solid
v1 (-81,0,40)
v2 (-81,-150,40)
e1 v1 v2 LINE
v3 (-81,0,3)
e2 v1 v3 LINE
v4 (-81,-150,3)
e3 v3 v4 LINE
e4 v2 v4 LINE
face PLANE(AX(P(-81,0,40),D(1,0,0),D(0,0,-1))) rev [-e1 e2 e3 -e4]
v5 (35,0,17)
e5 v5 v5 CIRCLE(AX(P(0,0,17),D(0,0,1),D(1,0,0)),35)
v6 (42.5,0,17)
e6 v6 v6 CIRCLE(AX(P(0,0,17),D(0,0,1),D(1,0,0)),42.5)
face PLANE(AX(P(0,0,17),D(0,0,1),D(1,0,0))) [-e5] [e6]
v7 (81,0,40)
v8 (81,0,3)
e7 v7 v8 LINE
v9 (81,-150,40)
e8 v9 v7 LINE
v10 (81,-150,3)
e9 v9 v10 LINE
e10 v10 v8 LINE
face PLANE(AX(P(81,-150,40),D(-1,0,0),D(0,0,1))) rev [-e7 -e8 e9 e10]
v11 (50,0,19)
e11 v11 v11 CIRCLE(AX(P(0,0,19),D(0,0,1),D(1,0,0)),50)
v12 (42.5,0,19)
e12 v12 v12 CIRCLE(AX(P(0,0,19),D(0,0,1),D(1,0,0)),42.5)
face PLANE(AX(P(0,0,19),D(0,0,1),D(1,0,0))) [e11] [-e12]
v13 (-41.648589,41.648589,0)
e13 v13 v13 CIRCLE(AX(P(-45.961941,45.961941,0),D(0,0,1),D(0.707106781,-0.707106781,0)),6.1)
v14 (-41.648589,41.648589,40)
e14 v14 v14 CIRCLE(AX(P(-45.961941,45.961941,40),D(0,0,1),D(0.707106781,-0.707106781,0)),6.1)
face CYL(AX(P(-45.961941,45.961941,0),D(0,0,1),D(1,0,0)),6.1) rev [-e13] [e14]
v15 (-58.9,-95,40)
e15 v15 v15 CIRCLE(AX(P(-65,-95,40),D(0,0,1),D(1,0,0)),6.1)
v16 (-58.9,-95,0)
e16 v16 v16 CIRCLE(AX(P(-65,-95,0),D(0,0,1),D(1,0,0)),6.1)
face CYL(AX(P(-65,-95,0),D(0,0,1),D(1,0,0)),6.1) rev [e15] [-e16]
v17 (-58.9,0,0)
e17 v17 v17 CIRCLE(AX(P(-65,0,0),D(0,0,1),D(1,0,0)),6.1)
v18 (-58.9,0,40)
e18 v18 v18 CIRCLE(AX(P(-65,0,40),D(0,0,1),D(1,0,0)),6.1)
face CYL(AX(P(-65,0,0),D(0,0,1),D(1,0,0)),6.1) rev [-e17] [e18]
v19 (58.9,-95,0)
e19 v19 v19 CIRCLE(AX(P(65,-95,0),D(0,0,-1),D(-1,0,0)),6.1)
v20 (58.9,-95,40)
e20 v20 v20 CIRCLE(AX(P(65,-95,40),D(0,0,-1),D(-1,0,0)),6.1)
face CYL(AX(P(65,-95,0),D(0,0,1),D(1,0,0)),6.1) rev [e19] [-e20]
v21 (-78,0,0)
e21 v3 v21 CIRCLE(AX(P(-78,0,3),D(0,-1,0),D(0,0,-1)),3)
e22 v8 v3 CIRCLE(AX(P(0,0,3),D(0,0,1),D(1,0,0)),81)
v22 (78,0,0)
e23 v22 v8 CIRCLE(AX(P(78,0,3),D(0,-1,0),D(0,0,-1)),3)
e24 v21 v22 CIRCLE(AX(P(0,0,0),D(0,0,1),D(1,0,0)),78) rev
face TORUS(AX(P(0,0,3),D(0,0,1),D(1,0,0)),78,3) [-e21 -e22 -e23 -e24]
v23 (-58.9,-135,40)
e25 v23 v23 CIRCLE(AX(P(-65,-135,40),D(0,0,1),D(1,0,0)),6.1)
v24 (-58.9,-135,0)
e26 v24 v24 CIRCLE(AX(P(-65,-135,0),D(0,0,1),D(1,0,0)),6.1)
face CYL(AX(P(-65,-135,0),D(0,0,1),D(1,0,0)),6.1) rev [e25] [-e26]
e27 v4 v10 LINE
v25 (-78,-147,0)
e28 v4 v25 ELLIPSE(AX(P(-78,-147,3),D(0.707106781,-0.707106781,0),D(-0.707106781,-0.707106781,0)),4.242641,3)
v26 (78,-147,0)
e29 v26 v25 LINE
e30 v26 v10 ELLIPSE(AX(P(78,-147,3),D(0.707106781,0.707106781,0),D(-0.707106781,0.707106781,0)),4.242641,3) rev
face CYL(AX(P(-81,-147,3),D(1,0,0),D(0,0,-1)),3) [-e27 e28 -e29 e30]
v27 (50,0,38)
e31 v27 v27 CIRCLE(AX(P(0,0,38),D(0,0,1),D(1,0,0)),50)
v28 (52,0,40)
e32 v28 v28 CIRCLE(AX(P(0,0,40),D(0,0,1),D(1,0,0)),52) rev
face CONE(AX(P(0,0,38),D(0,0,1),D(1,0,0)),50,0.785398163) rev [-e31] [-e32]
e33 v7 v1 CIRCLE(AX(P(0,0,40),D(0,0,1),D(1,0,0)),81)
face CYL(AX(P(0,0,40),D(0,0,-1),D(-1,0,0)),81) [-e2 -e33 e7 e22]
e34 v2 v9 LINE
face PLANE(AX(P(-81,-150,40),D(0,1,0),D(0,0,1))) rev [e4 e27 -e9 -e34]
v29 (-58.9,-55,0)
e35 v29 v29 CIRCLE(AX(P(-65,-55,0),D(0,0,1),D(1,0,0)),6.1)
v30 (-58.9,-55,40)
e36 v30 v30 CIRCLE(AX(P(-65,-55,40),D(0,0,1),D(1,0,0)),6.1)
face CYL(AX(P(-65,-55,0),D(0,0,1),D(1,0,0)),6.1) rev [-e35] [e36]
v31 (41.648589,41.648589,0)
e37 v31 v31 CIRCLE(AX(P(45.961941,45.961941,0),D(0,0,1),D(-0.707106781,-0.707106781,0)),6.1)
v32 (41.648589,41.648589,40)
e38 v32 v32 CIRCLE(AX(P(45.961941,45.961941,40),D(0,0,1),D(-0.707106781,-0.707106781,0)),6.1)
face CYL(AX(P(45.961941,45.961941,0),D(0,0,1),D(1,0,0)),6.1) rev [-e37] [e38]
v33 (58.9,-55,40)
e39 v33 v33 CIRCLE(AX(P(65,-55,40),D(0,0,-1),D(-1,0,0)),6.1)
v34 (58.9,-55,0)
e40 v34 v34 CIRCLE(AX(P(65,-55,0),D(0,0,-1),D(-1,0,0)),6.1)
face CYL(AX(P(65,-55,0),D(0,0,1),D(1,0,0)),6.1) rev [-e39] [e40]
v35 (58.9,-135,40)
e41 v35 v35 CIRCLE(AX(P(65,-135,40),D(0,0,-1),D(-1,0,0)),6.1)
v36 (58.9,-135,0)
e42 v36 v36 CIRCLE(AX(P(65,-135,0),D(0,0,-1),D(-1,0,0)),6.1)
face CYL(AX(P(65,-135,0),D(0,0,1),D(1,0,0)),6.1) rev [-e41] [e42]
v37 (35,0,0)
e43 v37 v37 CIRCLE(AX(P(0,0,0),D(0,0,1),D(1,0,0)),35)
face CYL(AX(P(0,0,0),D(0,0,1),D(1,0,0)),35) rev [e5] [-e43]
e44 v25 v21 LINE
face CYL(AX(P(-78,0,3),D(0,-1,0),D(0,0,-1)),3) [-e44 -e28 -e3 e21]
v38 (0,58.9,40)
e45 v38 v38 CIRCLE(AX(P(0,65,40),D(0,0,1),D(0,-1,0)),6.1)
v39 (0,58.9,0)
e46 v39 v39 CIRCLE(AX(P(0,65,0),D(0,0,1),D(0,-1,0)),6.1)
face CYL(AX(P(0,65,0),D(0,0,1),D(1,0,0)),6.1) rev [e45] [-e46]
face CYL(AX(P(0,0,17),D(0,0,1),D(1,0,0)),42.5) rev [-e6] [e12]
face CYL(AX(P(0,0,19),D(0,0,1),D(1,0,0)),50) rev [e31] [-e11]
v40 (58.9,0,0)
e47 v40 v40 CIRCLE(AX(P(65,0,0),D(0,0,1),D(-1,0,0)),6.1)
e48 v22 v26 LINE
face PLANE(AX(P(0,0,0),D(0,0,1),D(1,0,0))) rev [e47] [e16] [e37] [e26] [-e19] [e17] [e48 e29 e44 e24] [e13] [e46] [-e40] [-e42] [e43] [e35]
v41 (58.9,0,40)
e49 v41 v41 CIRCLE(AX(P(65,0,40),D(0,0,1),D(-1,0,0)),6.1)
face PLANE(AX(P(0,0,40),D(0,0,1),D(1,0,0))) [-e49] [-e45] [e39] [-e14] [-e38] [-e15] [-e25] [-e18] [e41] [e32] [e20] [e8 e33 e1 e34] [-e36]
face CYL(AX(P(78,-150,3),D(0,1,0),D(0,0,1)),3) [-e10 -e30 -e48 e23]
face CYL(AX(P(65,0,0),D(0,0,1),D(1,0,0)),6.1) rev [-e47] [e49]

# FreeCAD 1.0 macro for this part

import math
import FreeCAD as App
import Part
import Sketcher
Q = App.Units.Quantity


def edges_at(feature, points):
    """Names of the edges that pass closest to the given points."""
    edges = feature.Shape.Edges
    near = lambda p: min(range(len(edges)), key=lambda i: edges[i].distToShape(Part.Vertex(*p))[0])
    return sorted({f"Edge{near(p) + 1}" for p in points})

doc = App.newDocument("Part")
params = doc.addObject("Spreadsheet::Sheet", "Params")
for row, (alias, value) in enumerate([
    ("sketch1_radius", "81 mm"),
    ("sketch1_height", "150 mm"),
    ("pad1_length", "40 mm"),
    ("sketch2_diameter", "12.2 mm"),
    ("pocket1_length", "40 mm"),
    ("sketch3_diameter", "12.2 mm"),
    ("pocket2_length", "40 mm"),
    ("sketch4_diameter", "100 mm"),
    ("pocket3_length", "21 mm"),
    ("sketch5_diameter", "85 mm"),
    ("pocket4_length", "2 mm"),
    ("sketch6_diameter", "70 mm"),
    ("pocket5_length", "17 mm"),
    ("chamfer_size", "2 mm"),
    ("fillet_radius", "3 mm"),
], start=1):
    params.set(f"A{row}", alias)
    params.set(f"B{row}", "=" + value)
    params.setAlias(f"B{row}", alias)

body = doc.addObject("PartDesign::Body", "Body")

# Sketch on XY plane
sketch1 = body.newObject("Sketcher::SketchObject", "Sketch")
sketch1.AttachmentSupport = (doc.getObject("XY_Plane"), [""])
sketch1.MapMode = "FlatFace"
sketch1.addGeometry([
    Part.LineSegment(App.Vector(-81, 0, 0), App.Vector(-81, -150, 0)),
    Part.LineSegment(App.Vector(-81, -150, 0), App.Vector(81, -150, 0)),
    Part.LineSegment(App.Vector(81, -150, 0), App.Vector(81, 0, 0)),
    Part.ArcOfCircle(Part.Circle(App.Vector(0, 0, 0), App.Vector(0, 0, 1), 81), math.radians(0), math.radians(180)),
], False)
sketch1.addConstraint([
    Sketcher.Constraint("Coincident", 0, 2, 1, 1),
    Sketcher.Constraint("Coincident", 1, 2, 2, 1),
    Sketcher.Constraint("Tangent", 2, 2, 3, 1),
    Sketcher.Constraint("Tangent", 3, 2, 0, 1),
    Sketcher.Constraint("Vertical", 0),
    Sketcher.Constraint("Horizontal", 1),
    Sketcher.Constraint("Vertical", 2),
    Sketcher.Constraint("Coincident", 3, 3, -1, 1),
    Sketcher.Constraint("Radius", 3, Q("81 mm")),
    Sketcher.Constraint("DistanceY", 0, 2, 0, 1, Q("150 mm")),
])
sketch1.setExpression("Constraints[8]", "Params.sketch1_radius")
sketch1.setExpression("Constraints[9]", "Params.sketch1_height")
pad1 = body.newObject("PartDesign::Pad", "Pad")
pad1.Profile = sketch1
pad1.setExpression("Length", "Params.pad1_length")

# Sketch on XY plane
sketch2 = body.newObject("Sketcher::SketchObject", "Sketch001")
sketch2.AttachmentSupport = (doc.getObject("XY_Plane"), [""])
sketch2.MapMode = "FlatFace"
sketch2.AttachmentOffset = App.Placement(App.Vector(0, 0, 40), App.Rotation())
sketch2.addGeometry(Part.Circle(App.Vector(-65, 0, 0), App.Vector(0, 0, 1), 6), False)
sketch2.addConstraint([
    Sketcher.Constraint("PointOnObject", 0, 3, -1),
    Sketcher.Constraint("Diameter", 0, Q("12.2 mm")),
    Sketcher.Constraint("DistanceX", 0, 3, -1, 1, Q("65 mm")),
])
sketch2.setExpression("Constraints[1]", "Params.sketch2_diameter")
pocket1 = body.newObject("PartDesign::Pocket", "Pocket")
pocket1.Profile = sketch2
pocket1.setExpression("Length", "Params.pocket1_length")
doc.recompute()

polarpattern = body.newObject("PartDesign::PolarPattern", "PolarPattern")
polarpattern.Originals = [pocket1]
polarpattern.Axis = (doc.getObject("Z_Axis"), [""])
polarpattern.Angle = 180
polarpattern.Occurrences = 5
polarpattern.Reversed = True
body.Tip = polarpattern

# Sketch on XY plane
sketch3 = body.newObject("Sketcher::SketchObject", "Sketch002")
sketch3.AttachmentSupport = (doc.getObject("XY_Plane"), [""])
sketch3.MapMode = "FlatFace"
sketch3.AttachmentOffset = App.Placement(App.Vector(0, 0, 40), App.Rotation())
sketch3.addGeometry([
    Part.Circle(App.Vector(-65, -135, 0), App.Vector(0, 0, 1), 6),
    Part.Circle(App.Vector(-65, -95, 0), App.Vector(0, 0, 1), 6),
    Part.Circle(App.Vector(-65, -55, 0), App.Vector(0, 0, 1), 6),
], False)
sketch3.addConstraint([
    Sketcher.Constraint("Equal", 0, 1),
    Sketcher.Constraint("Equal", 1, 2),
    Sketcher.Constraint("Vertical", 0, 3, 1, 3),
    Sketcher.Constraint("Vertical", 1, 3, 2, 3),
    Sketcher.Constraint("Diameter", 0, Q("12.2 mm")),
    Sketcher.Constraint("DistanceX", 0, 3, -1, 1, Q("65 mm")),
    Sketcher.Constraint("DistanceY", 0, 3, -1, 1, Q("135 mm")),
    Sketcher.Constraint("DistanceY", 1, 3, -1, 1, Q("95 mm")),
    Sketcher.Constraint("DistanceY", 2, 3, -1, 1, Q("55 mm")),
])
sketch3.setExpression("Constraints[4]", "Params.sketch3_diameter")
pocket2 = body.newObject("PartDesign::Pocket", "Pocket001")
pocket2.Profile = sketch3
pocket2.setExpression("Length", "Params.pocket2_length")
doc.recompute()

mirrored = body.newObject("PartDesign::Mirrored", "Mirrored")
mirrored.Originals = [pocket2]
mirrored.MirrorPlane = (doc.getObject("YZ_Plane"), [""])
body.Tip = mirrored

# Sketch on XY plane
sketch4 = body.newObject("Sketcher::SketchObject", "Sketch003")
sketch4.AttachmentSupport = (doc.getObject("XY_Plane"), [""])
sketch4.MapMode = "FlatFace"
sketch4.AttachmentOffset = App.Placement(App.Vector(0, 0, 40), App.Rotation())
sketch4.addGeometry(Part.Circle(App.Vector(0, 0, 0), App.Vector(0, 0, 1), 50), False)
sketch4.addConstraint([
    Sketcher.Constraint("Coincident", 0, 3, -1, 1),
    Sketcher.Constraint("Diameter", 0, Q("100 mm")),
])
sketch4.setExpression("Constraints[1]", "Params.sketch4_diameter")
pocket3 = body.newObject("PartDesign::Pocket", "Pocket002")
pocket3.Profile = sketch4
pocket3.setExpression("Length", "Params.pocket3_length")

# Sketch on XY plane
sketch5 = body.newObject("Sketcher::SketchObject", "Sketch004")
sketch5.AttachmentSupport = (doc.getObject("XY_Plane"), [""])
sketch5.MapMode = "FlatFace"
sketch5.AttachmentOffset = App.Placement(App.Vector(0, 0, 19), App.Rotation())
sketch5.addGeometry(Part.Circle(App.Vector(0, 0, 0), App.Vector(0, 0, 1), 42), False)
sketch5.addConstraint([
    Sketcher.Constraint("Coincident", 0, 3, -1, 1),
    Sketcher.Constraint("Diameter", 0, Q("85 mm")),
])
sketch5.setExpression("Constraints[1]", "Params.sketch5_diameter")
pocket4 = body.newObject("PartDesign::Pocket", "Pocket003")
pocket4.Profile = sketch5
pocket4.setExpression("Length", "Params.pocket4_length")

# Sketch on XY plane
sketch6 = body.newObject("Sketcher::SketchObject", "Sketch005")
sketch6.AttachmentSupport = (doc.getObject("XY_Plane"), [""])
sketch6.MapMode = "FlatFace"
sketch6.AttachmentOffset = App.Placement(App.Vector(0, 0, 17), App.Rotation())
sketch6.addGeometry(Part.Circle(App.Vector(0, 0, 0), App.Vector(0, 0, 1), 35), False)
sketch6.addConstraint([
    Sketcher.Constraint("Coincident", 0, 3, -1, 1),
    Sketcher.Constraint("Diameter", 0, Q("70 mm")),
])
sketch6.setExpression("Constraints[1]", "Params.sketch6_diameter")
pocket5 = body.newObject("PartDesign::Pocket", "Pocket004")
pocket5.Profile = sketch6
pocket5.setExpression("Length", "Params.pocket5_length")
doc.recompute()

chamfer = body.newObject("PartDesign::Chamfer", "Chamfer")
chamfer.Base = (pocket5, edges_at(pocket5, [(-50, 0, 40)]))
chamfer.setExpression("Size", "Params.chamfer_size")
doc.recompute()

fillet = body.newObject("PartDesign::Fillet", "Fillet")
fillet.Base = (chamfer, edges_at(chamfer, [
    (81, -75, 0),
    (0, -150, 0),
    (-81, -75, 0),
    (0, 81, 0),
]))
fillet.setExpression("Radius", "Params.fillet_radius")

doc.recompute()
